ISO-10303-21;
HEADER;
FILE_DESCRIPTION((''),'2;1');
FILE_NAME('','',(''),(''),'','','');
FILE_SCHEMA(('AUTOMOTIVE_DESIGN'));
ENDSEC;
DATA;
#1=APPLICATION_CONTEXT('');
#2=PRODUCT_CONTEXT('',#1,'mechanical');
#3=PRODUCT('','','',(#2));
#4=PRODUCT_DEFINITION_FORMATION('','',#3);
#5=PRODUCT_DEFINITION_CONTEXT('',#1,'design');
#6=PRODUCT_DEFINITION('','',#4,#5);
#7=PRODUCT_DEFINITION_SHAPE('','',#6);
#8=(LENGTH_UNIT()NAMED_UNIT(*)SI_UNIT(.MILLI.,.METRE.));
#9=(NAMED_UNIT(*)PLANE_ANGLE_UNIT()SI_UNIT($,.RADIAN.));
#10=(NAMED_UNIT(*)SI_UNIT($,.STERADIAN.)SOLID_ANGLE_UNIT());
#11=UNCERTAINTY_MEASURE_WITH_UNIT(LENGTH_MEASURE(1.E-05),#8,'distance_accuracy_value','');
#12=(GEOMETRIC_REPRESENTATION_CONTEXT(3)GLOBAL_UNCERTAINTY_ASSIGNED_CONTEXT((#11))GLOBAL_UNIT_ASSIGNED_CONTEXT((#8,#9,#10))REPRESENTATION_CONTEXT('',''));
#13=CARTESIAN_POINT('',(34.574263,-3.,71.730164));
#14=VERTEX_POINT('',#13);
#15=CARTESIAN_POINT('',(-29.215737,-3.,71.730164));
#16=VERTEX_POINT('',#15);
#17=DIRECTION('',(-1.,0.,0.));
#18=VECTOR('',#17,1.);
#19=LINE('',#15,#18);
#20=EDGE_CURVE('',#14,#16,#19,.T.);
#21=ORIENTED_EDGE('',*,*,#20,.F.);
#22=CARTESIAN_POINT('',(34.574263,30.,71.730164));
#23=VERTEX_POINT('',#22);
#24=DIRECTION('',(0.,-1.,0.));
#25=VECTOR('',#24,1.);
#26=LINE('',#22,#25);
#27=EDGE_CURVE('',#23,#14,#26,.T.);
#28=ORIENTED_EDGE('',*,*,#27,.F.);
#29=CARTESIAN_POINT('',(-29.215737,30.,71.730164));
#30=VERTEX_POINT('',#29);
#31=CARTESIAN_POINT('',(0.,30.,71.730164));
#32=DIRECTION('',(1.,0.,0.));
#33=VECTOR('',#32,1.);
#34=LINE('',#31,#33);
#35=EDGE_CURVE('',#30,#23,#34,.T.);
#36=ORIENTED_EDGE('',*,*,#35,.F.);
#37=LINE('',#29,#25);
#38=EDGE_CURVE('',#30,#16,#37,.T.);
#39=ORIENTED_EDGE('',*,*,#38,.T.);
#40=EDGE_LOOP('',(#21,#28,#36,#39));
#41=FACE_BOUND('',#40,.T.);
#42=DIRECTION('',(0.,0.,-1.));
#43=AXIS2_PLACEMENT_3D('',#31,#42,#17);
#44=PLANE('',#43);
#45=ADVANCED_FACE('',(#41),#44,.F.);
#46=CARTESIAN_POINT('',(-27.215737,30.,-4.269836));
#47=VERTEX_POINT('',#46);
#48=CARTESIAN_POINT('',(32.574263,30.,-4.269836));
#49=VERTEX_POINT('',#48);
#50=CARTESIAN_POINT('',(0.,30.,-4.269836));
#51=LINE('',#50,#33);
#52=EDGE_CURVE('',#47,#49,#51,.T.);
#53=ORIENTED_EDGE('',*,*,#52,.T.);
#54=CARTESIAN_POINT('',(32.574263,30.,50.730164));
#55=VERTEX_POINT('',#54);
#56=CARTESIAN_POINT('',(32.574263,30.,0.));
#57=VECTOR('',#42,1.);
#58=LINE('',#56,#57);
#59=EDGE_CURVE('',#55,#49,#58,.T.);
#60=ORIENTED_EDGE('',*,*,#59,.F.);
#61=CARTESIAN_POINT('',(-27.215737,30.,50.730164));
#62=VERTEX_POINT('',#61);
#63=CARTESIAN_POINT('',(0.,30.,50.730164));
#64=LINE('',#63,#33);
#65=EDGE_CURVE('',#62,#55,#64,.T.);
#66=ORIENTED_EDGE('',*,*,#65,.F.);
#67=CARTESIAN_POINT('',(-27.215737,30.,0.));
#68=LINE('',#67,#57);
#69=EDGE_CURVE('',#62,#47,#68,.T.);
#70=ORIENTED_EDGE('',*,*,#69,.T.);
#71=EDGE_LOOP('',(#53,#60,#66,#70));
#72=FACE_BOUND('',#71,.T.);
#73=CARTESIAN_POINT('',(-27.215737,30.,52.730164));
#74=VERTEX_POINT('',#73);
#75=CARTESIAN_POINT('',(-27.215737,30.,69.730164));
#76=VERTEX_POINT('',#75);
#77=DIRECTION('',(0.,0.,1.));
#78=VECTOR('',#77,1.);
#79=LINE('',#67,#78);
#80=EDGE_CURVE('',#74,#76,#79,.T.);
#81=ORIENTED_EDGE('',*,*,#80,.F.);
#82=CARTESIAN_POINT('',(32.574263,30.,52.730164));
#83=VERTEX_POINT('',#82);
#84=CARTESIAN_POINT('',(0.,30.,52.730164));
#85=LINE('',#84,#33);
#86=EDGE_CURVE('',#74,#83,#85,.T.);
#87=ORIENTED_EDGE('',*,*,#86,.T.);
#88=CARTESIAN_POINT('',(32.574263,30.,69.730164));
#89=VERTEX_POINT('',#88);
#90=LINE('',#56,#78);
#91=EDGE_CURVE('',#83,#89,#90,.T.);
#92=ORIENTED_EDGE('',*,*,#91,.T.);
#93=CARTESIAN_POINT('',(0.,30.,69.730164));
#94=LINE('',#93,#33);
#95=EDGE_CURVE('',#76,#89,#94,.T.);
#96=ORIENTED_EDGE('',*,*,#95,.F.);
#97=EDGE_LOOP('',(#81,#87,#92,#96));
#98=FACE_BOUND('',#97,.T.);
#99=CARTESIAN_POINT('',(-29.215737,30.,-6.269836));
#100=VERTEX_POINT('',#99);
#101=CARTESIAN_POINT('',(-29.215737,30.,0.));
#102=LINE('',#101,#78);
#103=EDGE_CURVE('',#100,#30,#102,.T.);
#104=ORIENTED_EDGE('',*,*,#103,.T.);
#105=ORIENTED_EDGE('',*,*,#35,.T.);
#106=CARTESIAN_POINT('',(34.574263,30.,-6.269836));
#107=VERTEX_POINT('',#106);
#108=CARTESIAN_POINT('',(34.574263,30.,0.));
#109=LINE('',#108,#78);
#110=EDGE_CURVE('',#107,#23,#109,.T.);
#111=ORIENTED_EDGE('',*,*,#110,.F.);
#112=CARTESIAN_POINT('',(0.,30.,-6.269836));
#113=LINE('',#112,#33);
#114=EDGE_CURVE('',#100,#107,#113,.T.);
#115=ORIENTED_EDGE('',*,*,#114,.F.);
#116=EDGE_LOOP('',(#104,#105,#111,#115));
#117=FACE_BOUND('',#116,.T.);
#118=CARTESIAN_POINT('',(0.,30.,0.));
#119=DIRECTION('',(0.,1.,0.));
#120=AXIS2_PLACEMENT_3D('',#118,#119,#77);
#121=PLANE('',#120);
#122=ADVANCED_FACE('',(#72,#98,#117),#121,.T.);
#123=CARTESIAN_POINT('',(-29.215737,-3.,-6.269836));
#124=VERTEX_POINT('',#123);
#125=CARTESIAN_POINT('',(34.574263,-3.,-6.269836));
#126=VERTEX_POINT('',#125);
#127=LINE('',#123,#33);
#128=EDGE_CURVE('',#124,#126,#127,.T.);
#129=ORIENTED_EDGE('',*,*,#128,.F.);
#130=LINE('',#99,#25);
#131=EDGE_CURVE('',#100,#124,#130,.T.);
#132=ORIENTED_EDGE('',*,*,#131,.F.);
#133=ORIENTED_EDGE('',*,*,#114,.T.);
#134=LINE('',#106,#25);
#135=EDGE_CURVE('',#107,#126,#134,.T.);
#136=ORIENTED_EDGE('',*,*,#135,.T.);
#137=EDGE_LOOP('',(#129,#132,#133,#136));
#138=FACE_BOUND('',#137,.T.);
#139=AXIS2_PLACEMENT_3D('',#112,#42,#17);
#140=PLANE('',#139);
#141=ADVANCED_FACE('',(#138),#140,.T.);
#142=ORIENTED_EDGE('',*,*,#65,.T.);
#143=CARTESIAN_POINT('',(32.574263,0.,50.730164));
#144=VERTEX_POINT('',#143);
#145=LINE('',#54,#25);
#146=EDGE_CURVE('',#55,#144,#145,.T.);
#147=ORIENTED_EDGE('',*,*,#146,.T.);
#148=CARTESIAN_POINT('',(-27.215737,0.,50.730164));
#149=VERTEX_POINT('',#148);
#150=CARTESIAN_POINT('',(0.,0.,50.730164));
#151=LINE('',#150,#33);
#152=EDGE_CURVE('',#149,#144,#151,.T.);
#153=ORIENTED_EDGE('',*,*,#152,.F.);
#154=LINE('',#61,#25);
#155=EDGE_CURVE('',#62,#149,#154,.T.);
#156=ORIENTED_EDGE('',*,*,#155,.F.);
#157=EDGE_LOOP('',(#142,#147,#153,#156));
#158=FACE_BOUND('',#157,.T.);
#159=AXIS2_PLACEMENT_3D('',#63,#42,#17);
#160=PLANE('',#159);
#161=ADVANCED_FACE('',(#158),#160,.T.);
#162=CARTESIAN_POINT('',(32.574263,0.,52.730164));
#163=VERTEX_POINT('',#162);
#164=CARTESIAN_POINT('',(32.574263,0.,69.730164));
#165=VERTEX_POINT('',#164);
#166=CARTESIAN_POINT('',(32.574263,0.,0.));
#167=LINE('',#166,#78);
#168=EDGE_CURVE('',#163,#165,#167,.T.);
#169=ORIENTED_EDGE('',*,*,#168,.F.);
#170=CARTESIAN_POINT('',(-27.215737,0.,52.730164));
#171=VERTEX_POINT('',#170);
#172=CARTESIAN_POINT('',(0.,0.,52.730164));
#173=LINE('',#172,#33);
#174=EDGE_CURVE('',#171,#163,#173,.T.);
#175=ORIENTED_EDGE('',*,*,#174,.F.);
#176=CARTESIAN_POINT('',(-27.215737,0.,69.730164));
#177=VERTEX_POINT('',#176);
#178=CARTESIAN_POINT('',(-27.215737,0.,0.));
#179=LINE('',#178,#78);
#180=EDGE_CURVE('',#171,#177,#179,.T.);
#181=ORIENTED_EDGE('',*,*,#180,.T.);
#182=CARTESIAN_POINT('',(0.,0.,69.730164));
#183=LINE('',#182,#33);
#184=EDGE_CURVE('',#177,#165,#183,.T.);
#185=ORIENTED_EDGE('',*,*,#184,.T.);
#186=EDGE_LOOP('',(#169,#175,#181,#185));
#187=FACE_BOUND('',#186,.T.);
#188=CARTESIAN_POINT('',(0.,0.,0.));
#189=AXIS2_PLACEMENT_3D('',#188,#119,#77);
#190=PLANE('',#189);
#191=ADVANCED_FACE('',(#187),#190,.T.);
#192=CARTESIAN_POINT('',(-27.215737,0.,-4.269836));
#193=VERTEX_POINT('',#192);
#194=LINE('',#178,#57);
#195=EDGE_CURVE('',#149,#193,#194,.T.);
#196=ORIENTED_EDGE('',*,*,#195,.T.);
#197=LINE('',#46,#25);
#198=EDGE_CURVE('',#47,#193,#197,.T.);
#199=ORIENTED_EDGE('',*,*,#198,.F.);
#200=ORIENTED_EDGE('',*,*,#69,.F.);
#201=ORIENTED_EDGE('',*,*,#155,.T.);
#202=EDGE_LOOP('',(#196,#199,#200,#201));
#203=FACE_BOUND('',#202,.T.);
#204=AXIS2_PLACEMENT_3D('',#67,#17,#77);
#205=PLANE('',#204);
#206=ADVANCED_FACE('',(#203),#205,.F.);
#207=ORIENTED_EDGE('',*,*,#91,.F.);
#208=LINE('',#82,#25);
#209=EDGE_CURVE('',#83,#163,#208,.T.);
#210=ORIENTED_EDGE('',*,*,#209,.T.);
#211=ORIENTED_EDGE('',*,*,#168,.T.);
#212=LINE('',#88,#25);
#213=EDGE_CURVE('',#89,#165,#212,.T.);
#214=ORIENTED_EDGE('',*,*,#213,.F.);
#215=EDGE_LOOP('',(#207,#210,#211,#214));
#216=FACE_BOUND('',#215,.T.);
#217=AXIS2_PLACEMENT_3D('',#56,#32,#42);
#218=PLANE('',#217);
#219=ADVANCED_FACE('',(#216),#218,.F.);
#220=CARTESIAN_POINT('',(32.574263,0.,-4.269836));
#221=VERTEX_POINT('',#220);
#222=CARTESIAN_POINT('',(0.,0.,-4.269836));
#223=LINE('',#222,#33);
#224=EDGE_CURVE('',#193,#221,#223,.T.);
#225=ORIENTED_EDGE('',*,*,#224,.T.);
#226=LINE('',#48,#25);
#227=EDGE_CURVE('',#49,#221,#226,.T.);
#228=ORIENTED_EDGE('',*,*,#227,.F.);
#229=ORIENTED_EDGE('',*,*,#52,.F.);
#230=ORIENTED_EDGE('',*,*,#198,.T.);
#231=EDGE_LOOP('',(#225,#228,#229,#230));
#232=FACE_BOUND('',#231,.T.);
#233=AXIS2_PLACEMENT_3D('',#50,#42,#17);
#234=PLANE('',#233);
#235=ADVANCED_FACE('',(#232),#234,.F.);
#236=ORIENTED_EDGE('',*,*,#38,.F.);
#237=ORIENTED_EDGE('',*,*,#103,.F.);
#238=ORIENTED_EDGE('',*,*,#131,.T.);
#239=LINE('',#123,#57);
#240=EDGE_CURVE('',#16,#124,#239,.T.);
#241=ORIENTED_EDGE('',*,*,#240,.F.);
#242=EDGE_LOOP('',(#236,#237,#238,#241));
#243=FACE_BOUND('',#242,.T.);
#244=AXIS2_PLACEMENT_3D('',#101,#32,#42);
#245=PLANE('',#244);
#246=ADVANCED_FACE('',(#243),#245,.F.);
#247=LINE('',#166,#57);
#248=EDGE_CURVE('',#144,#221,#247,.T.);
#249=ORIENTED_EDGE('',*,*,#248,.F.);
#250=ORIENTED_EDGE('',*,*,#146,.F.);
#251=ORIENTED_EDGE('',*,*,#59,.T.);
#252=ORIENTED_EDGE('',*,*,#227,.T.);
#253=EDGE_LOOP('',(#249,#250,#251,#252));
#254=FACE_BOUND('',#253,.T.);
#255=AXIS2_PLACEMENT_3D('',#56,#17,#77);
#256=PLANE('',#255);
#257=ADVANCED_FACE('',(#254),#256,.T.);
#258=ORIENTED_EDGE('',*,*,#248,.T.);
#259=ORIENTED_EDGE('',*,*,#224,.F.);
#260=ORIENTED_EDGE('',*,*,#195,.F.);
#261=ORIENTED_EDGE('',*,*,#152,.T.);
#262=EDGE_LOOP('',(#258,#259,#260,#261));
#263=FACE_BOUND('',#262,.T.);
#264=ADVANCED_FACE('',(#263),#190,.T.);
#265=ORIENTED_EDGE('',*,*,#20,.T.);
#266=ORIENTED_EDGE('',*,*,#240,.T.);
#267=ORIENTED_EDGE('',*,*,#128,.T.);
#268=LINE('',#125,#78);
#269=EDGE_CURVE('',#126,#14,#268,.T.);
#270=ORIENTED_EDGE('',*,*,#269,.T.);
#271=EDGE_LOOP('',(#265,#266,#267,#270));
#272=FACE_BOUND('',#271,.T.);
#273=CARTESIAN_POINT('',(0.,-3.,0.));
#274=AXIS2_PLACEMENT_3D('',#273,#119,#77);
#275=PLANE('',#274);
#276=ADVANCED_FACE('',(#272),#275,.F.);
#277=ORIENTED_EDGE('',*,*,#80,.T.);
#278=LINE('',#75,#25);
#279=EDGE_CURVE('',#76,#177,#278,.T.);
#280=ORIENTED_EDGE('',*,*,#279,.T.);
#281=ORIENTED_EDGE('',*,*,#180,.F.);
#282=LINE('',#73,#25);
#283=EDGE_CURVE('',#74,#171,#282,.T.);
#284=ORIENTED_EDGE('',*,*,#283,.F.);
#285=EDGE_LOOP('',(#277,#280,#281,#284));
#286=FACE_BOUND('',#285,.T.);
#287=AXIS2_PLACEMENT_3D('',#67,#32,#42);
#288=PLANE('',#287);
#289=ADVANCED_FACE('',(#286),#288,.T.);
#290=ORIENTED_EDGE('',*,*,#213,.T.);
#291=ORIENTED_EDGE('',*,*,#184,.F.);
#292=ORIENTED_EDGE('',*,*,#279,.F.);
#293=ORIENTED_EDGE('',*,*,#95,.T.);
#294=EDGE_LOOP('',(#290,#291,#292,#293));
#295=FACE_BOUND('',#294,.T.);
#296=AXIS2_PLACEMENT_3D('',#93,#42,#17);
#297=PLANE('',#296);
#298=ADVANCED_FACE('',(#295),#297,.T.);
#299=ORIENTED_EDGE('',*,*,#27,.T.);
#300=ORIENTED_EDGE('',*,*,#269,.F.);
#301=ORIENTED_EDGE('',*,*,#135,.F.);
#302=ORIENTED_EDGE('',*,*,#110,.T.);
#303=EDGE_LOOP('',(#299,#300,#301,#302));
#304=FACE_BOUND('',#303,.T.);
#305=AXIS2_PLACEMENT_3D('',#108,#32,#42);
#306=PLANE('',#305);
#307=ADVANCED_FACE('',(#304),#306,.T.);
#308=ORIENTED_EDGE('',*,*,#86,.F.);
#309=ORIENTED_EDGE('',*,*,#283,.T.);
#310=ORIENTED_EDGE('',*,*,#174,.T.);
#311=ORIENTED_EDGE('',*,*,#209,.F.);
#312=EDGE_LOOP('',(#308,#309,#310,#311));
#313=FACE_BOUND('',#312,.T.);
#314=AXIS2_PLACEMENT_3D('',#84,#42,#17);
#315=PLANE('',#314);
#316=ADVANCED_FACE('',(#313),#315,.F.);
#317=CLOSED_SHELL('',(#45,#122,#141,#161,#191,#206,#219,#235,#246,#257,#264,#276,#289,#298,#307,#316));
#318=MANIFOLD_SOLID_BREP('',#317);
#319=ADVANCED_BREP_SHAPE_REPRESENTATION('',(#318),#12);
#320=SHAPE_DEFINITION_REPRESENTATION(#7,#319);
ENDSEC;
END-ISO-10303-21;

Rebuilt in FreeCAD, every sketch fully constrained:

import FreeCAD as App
import Part
import Sketcher
from FreeCAD import Vector
Q = App.Units.Quantity

doc = App.newDocument("Part")
body = doc.addObject("PartDesign::Body", "Body")

sketch1 = body.newObject("Sketcher::SketchObject", "Sketch")
sketch1.AttachmentSupport = (doc.getObject("XZ_Plane"), [""])
sketch1.MapMode = "FlatFace"
sketch1.addGeometry([
    Part.LineSegment(Vector(-29, 72, 0), Vector(35, 72, 0)),
    Part.LineSegment(Vector(35, 72, 0), Vector(35, -6, 0)),
    Part.LineSegment(Vector(35, -6, 0), Vector(-29, -6, 0)),
    Part.LineSegment(Vector(-29, -6, 0), Vector(-29, 72, 0)),
    Part.LineSegment(Vector(33, 53, 0), Vector(33, 70, 0)),
    Part.LineSegment(Vector(33, 70, 0), Vector(-27, 70, 0)),
    Part.LineSegment(Vector(-27, 70, 0), Vector(-27, 53, 0)),
    Part.LineSegment(Vector(-27, 53, 0), Vector(33, 53, 0)),
    Part.LineSegment(Vector(33, 51, 0), Vector(-27, 51, 0)),
    Part.LineSegment(Vector(-27, 51, 0), Vector(-27, -4, 0)),
    Part.LineSegment(Vector(-27, -4, 0), Vector(33, -4, 0)),
    Part.LineSegment(Vector(33, -4, 0), Vector(33, 51, 0)),
], False)
sketch1.addConstraint([
    Sketcher.Constraint("Coincident", 0, 2, 1, 1),
    Sketcher.Constraint("Coincident", 1, 2, 2, 1),
    Sketcher.Constraint("Coincident", 2, 2, 3, 1),
    Sketcher.Constraint("Coincident", 3, 2, 0, 1),
    Sketcher.Constraint("Coincident", 4, 2, 5, 1),
    Sketcher.Constraint("Coincident", 5, 2, 6, 1),
    Sketcher.Constraint("Coincident", 6, 2, 7, 1),
    Sketcher.Constraint("Coincident", 7, 2, 4, 1),
    Sketcher.Constraint("Coincident", 8, 2, 9, 1),
    Sketcher.Constraint("Coincident", 9, 2, 10, 1),
    Sketcher.Constraint("Coincident", 10, 2, 11, 1),
    Sketcher.Constraint("Coincident", 11, 2, 8, 1),
    Sketcher.Constraint("Horizontal", 0),
    Sketcher.Constraint("Vertical", 1),
    Sketcher.Constraint("Horizontal", 2),
    Sketcher.Constraint("Vertical", 3),
    Sketcher.Constraint("Vertical", 4),
    Sketcher.Constraint("Horizontal", 5),
    Sketcher.Constraint("Vertical", 6),
    Sketcher.Constraint("Horizontal", 7),
    Sketcher.Constraint("Horizontal", 8),
    Sketcher.Constraint("Vertical", 9),
    Sketcher.Constraint("Horizontal", 10),
    Sketcher.Constraint("Vertical", 11),
    Sketcher.Constraint("Vertical", 6, 2, 8, 2),
    Sketcher.Constraint("Vertical", 7, 2, 10, 2),
    Sketcher.Constraint("DistanceY", 1, 2, 1, 1, Q("78 mm")),
    Sketcher.Constraint("DistanceY", 4, 1, 4, 2, Q("17 mm")),
    Sketcher.Constraint("DistanceY", 9, 2, 9, 1, Q("55 mm")),
    Sketcher.Constraint("DistanceX", 4, 2, 0, 2, Q("2 mm")),
    Sketcher.Constraint("DistanceY", 4, 2, 0, 2, Q("2 mm")),
    Sketcher.Constraint("DistanceX", 3, 2, 5, 2, Q("2 mm")),
    Sketcher.Constraint("DistanceY", 8, 2, 6, 2, Q("2 mm")),
    Sketcher.Constraint("DistanceX", 0, 1, 0, 2, Q("63.79 mm")),
    Sketcher.Constraint("DistanceX", -1, 1, 0, 2, Q("34.574263 mm")),
    Sketcher.Constraint("DistanceY", -1, 1, 0, 2, Q("71.730164 mm")),
])
pad1 = body.newObject("PartDesign::Pad", "Pad")
pad1.Profile = sketch1
pad1.Length = 30
pad1.Reversed = True

sketch2 = body.newObject("Sketcher::SketchObject", "Sketch001")
sketch2.AttachmentSupport = (doc.getObject("XZ_Plane"), [""])
sketch2.MapMode = "FlatFace"
sketch2.addGeometry([
    Part.LineSegment(Vector(-29, 72, 0), Vector(-29, -6, 0)),
    Part.LineSegment(Vector(-29, -6, 0), Vector(35, -6, 0)),
    Part.LineSegment(Vector(35, -6, 0), Vector(35, 72, 0)),
    Part.LineSegment(Vector(35, 72, 0), Vector(-29, 72, 0)),
], False)
sketch2.addConstraint([
    Sketcher.Constraint("Coincident", 0, 2, 1, 1),
    Sketcher.Constraint("Coincident", 1, 2, 2, 1),
    Sketcher.Constraint("Coincident", 2, 2, 3, 1),
    Sketcher.Constraint("Coincident", 3, 2, 0, 1),
    Sketcher.Constraint("Vertical", 0),
    Sketcher.Constraint("Horizontal", 1),
    Sketcher.Constraint("Vertical", 2),
    Sketcher.Constraint("Horizontal", 3),
    Sketcher.Constraint("DistanceY", 0, 2, 0, 1, Q("78 mm")),
    Sketcher.Constraint("DistanceX", 1, 1, 1, 2, Q("63.79 mm")),
    Sketcher.Constraint("DistanceX", 0, 2, -1, 1, Q("29.215737 mm")),
    Sketcher.Constraint("DistanceY", 0, 2, -1, 1, Q("6.269836 mm")),
])
pad2 = body.newObject("PartDesign::Pad", "Pad001")
pad2.Profile = sketch2
pad2.Length = 3

doc.recompute()
